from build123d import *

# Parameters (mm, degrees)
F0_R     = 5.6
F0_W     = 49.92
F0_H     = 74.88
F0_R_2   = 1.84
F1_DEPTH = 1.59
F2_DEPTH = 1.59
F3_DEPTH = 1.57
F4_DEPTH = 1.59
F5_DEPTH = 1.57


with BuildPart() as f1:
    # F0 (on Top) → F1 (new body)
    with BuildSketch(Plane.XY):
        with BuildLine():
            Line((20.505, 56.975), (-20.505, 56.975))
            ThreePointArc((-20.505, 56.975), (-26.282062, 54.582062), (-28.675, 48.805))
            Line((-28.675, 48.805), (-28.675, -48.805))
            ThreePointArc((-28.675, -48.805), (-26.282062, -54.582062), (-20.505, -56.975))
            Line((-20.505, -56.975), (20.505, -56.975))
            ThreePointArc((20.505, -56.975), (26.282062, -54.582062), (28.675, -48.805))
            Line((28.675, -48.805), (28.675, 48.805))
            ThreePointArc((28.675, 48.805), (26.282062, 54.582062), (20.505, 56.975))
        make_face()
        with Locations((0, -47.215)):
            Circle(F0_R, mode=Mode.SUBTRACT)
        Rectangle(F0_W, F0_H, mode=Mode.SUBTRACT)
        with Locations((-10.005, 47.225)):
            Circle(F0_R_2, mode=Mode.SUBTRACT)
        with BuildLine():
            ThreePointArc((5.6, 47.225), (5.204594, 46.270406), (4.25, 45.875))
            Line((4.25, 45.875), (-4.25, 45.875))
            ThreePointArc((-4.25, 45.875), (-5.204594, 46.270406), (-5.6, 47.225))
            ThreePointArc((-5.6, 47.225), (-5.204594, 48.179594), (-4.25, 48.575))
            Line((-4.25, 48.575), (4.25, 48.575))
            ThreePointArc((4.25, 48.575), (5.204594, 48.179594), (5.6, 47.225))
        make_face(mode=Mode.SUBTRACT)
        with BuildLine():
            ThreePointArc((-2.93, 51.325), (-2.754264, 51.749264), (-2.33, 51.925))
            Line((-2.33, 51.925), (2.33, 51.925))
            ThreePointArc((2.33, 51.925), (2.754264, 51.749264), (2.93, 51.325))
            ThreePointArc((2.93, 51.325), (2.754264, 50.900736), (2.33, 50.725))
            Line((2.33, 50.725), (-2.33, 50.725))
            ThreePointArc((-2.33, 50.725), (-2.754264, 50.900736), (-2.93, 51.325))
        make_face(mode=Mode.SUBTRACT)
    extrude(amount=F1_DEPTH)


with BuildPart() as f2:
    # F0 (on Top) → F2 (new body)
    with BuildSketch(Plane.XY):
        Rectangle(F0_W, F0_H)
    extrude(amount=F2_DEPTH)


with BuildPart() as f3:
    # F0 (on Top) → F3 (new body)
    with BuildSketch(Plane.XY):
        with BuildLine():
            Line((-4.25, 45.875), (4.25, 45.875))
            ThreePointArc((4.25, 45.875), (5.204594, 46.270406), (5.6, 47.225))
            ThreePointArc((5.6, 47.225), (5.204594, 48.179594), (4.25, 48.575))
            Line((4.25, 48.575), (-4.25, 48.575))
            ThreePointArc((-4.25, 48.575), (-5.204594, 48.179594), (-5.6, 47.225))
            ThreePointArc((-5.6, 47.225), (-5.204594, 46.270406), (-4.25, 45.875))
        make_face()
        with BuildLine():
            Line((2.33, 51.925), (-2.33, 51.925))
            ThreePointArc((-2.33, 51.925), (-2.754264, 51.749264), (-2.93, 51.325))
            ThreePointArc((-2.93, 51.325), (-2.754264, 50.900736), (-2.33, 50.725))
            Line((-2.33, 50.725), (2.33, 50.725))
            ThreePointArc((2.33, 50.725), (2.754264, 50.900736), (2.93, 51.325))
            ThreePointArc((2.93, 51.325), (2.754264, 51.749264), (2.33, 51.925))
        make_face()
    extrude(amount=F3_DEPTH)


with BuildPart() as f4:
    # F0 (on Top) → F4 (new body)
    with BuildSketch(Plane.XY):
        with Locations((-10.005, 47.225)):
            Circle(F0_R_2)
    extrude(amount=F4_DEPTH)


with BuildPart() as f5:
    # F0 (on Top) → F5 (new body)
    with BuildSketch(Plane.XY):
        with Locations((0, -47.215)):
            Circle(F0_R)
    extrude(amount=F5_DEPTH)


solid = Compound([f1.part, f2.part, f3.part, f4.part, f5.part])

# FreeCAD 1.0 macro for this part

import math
import FreeCAD as App
import Part
import Sketcher

V = App.Vector
Q = App.Units.Quantity


def add_polygon(sketch, points):
    """Adds a closed chain of lines whose ends are joined by coincident constraints."""
    first, n = sketch.GeometryCount, len(points)
    for a, b in zip(points, points[1:] + points[:1]):
        sketch.addGeometry(Part.LineSegment(App.Vector(*a, 0), App.Vector(*b, 0)), False)
    for i in range(n):
        sketch.addConstraint(Sketcher.Constraint("Coincident", first + i, 2, first + (i + 1) % n, 1))

doc = App.newDocument("Part")
body = doc.addObject("PartDesign::Body", "Body")

# Sketch on XY plane
sketch1 = body.newObject("Sketcher::SketchObject", "Sketch")
sketch1.AttachmentSupport = (doc.getObject("XY_Plane"), [""])
sketch1.MapMode = "FlatFace"
sketch1.addGeometry(Part.LineSegment(V(20.5, 57, 0), V(-20.5, 57, 0)), False)  # 0
sketch1.addGeometry(Part.ArcOfCircle(Part.Circle(V(-20.5, 48.8, 0), V(0, 0, 1), 8.2), math.radians(90), math.radians(180)), False)  # 1
sketch1.addGeometry(Part.LineSegment(V(-28.7, 48.8, 0), V(-28.7, -48.8, 0)), False)  # 2
sketch1.addGeometry(Part.ArcOfCircle(Part.Circle(V(-20.5, -48.8, 0), V(0, 0, 1), 8.2), math.radians(-180), math.radians(-90)), False)  # 3
sketch1.addGeometry(Part.LineSegment(V(-20.5, -57, 0), V(20.5, -57, 0)), False)  # 4
sketch1.addGeometry(Part.ArcOfCircle(Part.Circle(V(20.5, -48.8, 0), V(0, 0, 1), 8.2), math.radians(-90), math.radians(0)), False)  # 5
sketch1.addGeometry(Part.LineSegment(V(28.7, -48.8, 0), V(28.7, 48.8, 0)), False)  # 6
sketch1.addGeometry(Part.ArcOfCircle(Part.Circle(V(20.5, 48.8, 0), V(0, 0, 1), 8.2), math.radians(0), math.radians(90)), False)  # 7
sketch1.addGeometry(Part.Circle(V(0, -47.2, 0), V(0, 0, 1), 5.6), False)  # 8
sketch1.addGeometry(Part.Circle(V(-10, 47.2, 0), V(0, 0, 1), 1.8), False)  # 9
sketch1.addGeometry(Part.ArcOfCircle(Part.Circle(V(-2.3, 51.3, 0), V(0, 0, 1), 0.6), math.radians(-180), math.radians(-90)), False)  # 10
sketch1.addGeometry(Part.ArcOfCircle(Part.Circle(V(-2.3, 51.3, 0), V(0, 0, 1), 0.6), math.radians(90), math.radians(180)), False)  # 11
sketch1.addGeometry(Part.LineSegment(V(-2.3, 51.9, 0), V(2.3, 51.9, 0)), False)  # 12
sketch1.addGeometry(Part.ArcOfCircle(Part.Circle(V(2.3, 51.3, 0), V(0, 0, 1), 0.6), math.radians(0), math.radians(90)), False)  # 13
sketch1.addGeometry(Part.ArcOfCircle(Part.Circle(V(2.3, 51.3, 0), V(0, 0, 1), 0.6), math.radians(-90), math.radians(0)), False)  # 14
sketch1.addGeometry(Part.LineSegment(V(2.3, 50.7, 0), V(-2.3, 50.7, 0)), False)  # 15
add_polygon(sketch1, [(25, -37.4), (-25, -37.4), (-25, 37.4), (25, 37.4)])  # lines 16-19
sketch1.addGeometry(Part.ArcOfCircle(Part.Circle(V(4.2, 47.2, 0), V(0, 0, 1), 1.4), math.radians(0), math.radians(90)), False)  # 20
sketch1.addGeometry(Part.ArcOfCircle(Part.Circle(V(4.2, 47.2, 0), V(0, 0, 1), 1.4), math.radians(-90), math.radians(0)), False)  # 21
sketch1.addGeometry(Part.LineSegment(V(4.2, 45.9, 0), V(-4.2, 45.9, 0)), False)  # 22
sketch1.addGeometry(Part.ArcOfCircle(Part.Circle(V(-4.2, 47.2, 0), V(0, 0, 1), 1.4), math.radians(-180), math.radians(-90)), False)  # 23
sketch1.addGeometry(Part.ArcOfCircle(Part.Circle(V(-4.2, 47.2, 0), V(0, 0, 1), 1.4), math.radians(90), math.radians(180)), False)  # 24
sketch1.addGeometry(Part.LineSegment(V(-4.2, 48.6, 0), V(4.2, 48.6, 0)), False)  # 25
sketch1.addConstraint([
    Sketcher.Constraint("Tangent", 0, 2, 1, 1),
    Sketcher.Constraint("Tangent", 1, 2, 2, 1),
    Sketcher.Constraint("Tangent", 2, 2, 3, 1),
    Sketcher.Constraint("Tangent", 3, 2, 4, 1),
    Sketcher.Constraint("Tangent", 4, 2, 5, 1),
    Sketcher.Constraint("Tangent", 5, 2, 6, 1),
    Sketcher.Constraint("Tangent", 6, 2, 7, 1),
    Sketcher.Constraint("Tangent", 7, 2, 0, 1),
    Sketcher.Constraint("Tangent", 10, 1, 11, 2),
    Sketcher.Constraint("Tangent", 11, 1, 12, 1),
    Sketcher.Constraint("Tangent", 12, 2, 13, 2),
    Sketcher.Constraint("Tangent", 13, 1, 14, 2),
    Sketcher.Constraint("Tangent", 14, 1, 15, 1),
    Sketcher.Constraint("Tangent", 15, 2, 10, 2),
    Sketcher.Constraint("Tangent", 20, 1, 21, 2),
    Sketcher.Constraint("Tangent", 21, 1, 22, 1),
    Sketcher.Constraint("Tangent", 22, 2, 23, 2),
    Sketcher.Constraint("Tangent", 23, 1, 24, 2),
    Sketcher.Constraint("Tangent", 24, 1, 25, 1),
    Sketcher.Constraint("Tangent", 25, 2, 20, 2),
    Sketcher.Constraint("Horizontal", 0),
    Sketcher.Constraint("Vertical", 2),
    Sketcher.Constraint("Horizontal", 4),
    Sketcher.Constraint("Vertical", 6),
    Sketcher.Constraint("Horizontal", 12),
    Sketcher.Constraint("Horizontal", 15),
    Sketcher.Constraint("Horizontal", 16),
    Sketcher.Constraint("Vertical", 17),
    Sketcher.Constraint("Horizontal", 18),
    Sketcher.Constraint("Vertical", 19),
    Sketcher.Constraint("Horizontal", 22),
    Sketcher.Constraint("Horizontal", 25),
    Sketcher.Constraint("Equal", 1, 3),
    Sketcher.Constraint("Equal", 3, 5),
    Sketcher.Constraint("Equal", 5, 7),
    Sketcher.Constraint("Equal", 10, 11),
    Sketcher.Constraint("Equal", 11, 13),
    Sketcher.Constraint("Equal", 20, 21),
    Sketcher.Constraint("Equal", 21, 23),
    Sketcher.Constraint("Symmetric", 1, 3, 5, 3, -1, 1),
    Sketcher.Constraint("Symmetric", 16, 2, 18, 2, -1, 1),
    Sketcher.Constraint("Symmetric", 10, 1, 13, 1, -2),
    Sketcher.Constraint("Symmetric", 20, 1, 23, 1, -2),
    Sketcher.Constraint("PointOnObject", 8, 3, -2),
    Sketcher.Constraint("Horizontal", 9, 3, 20, 3),
    Sketcher.Constraint("Horizontal", 14, 3, 10, 1),
    Sketcher.Constraint("Horizontal", 24, 3, 20, 1),
    Sketcher.Constraint("Diameter", 8, Q("11.2 mm")),
    Sketcher.Constraint("Radius", 10, Q("0.6 mm")),
    Sketcher.Constraint("Diameter", 9, Q("3.68 mm")),
    Sketcher.Constraint("Radius", 1, Q("8.170001 mm")),
    Sketcher.Constraint("Radius", 20, Q("1.350001 mm")),
    Sketcher.Constraint("DistanceX", 22, 2, 22, 1, Q("8.5 mm")),
    Sketcher.Constraint("DistanceX", 0, 2, 0, 1, Q("41.01 mm")),
    Sketcher.Constraint("DistanceX", 12, 1, 12, 2, Q("4.66 mm")),
    Sketcher.Constraint("DistanceX", 16, 2, 16, 1, Q("49.92 mm")),
    Sketcher.Constraint("DistanceY", 2, 2, 2, 1, Q("97.61 mm")),
    Sketcher.Constraint("DistanceY", 17, 1, 17, 2, Q("74.88 mm")),
    Sketcher.Constraint("DistanceX", 1, 3, 9, 3, Q("10.499999 mm")),
    Sketcher.Constraint("DistanceY", 9, 3, 10, 3, Q("4.1 mm")),
    Sketcher.Constraint("DistanceY", 3, 2, 9, 3, Q("104.2 mm")),
    Sketcher.Constraint("DistanceY", 3, 3, 8, 3, Q("1.589999 mm")),
])
pad1 = body.newObject("PartDesign::Pad", "Pad")
pad1.Profile = sketch1
pad1.Length = 1.59
body2 = doc.addObject("PartDesign::Body", "Body001")

# Sketch on XY plane
sketch2 = body2.newObject("Sketcher::SketchObject", "Sketch001")
sketch2.AttachmentSupport = (doc.getObject("XY_Plane001"), [""])
sketch2.MapMode = "FlatFace"
add_polygon(sketch2, [(-25, 37), (-25, -37), (25, -37), (25, 37)])  # lines 0-3
sketch2.addConstraint([
    Sketcher.Constraint("Vertical", 0),
    Sketcher.Constraint("Horizontal", 1),
    Sketcher.Constraint("Vertical", 2),
    Sketcher.Constraint("Horizontal", 3),
    Sketcher.Constraint("Symmetric", 0, 2, 2, 2, -1, 1),
    Sketcher.Constraint("DistanceX", 1, 1, 1, 2, Q("49.92 mm")),
    Sketcher.Constraint("DistanceY", 0, 2, 0, 1, Q("74.88 mm")),
])
pad2 = body2.newObject("PartDesign::Pad", "Pad001")
pad2.Profile = sketch2
pad2.Length = 1.59
body3 = doc.addObject("PartDesign::Body", "Body002")
body3.AllowCompound = True

# Sketch on XY plane
sketch3 = body3.newObject("Sketcher::SketchObject", "Sketch002")
sketch3.AttachmentSupport = (doc.getObject("XY_Plane002"), [""])
sketch3.MapMode = "FlatFace"
sketch3.addGeometry([
    Part.LineSegment(V(-4.2, 45.9, 0), V(4.2, 45.9, 0)),  # 0
    Part.ArcOfCircle(Part.Circle(V(4.2, 47.2, 0), V(0, 0, 1), 1.4), math.radians(-90), math.radians(0)),  # 1
    Part.ArcOfCircle(Part.Circle(V(4.2, 47.2, 0), V(0, 0, 1), 1.4), math.radians(0), math.radians(90)),  # 2
    Part.LineSegment(V(4.2, 48.6, 0), V(-4.2, 48.6, 0)),  # 3
    Part.ArcOfCircle(Part.Circle(V(-4.2, 47.2, 0), V(0, 0, 1), 1.4), math.radians(90), math.radians(180)),  # 4
    Part.ArcOfCircle(Part.Circle(V(-4.2, 47.2, 0), V(0, 0, 1), 1.4), math.radians(-180), math.radians(-90)),  # 5
    Part.LineSegment(V(2.3, 51.9, 0), V(-2.3, 51.9, 0)),  # 6
    Part.ArcOfCircle(Part.Circle(V(-2.3, 51.3, 0), V(0, 0, 1), 0.6), math.radians(90), math.radians(180)),  # 7
    Part.ArcOfCircle(Part.Circle(V(-2.3, 51.3, 0), V(0, 0, 1), 0.6), math.radians(-180), math.radians(-90)),  # 8
    Part.LineSegment(V(-2.3, 50.7, 0), V(2.3, 50.7, 0)),  # 9
    Part.ArcOfCircle(Part.Circle(V(2.3, 51.3, 0), V(0, 0, 1), 0.6), math.radians(-90), math.radians(0)),  # 10
    Part.ArcOfCircle(Part.Circle(V(2.3, 51.3, 0), V(0, 0, 1), 0.6), math.radians(0), math.radians(90)),  # 11
], False)
sketch3.addConstraint([
    Sketcher.Constraint("Tangent", 0, 2, 1, 1),
    Sketcher.Constraint("Tangent", 1, 2, 2, 1),
    Sketcher.Constraint("Tangent", 2, 2, 3, 1),
    Sketcher.Constraint("Tangent", 3, 2, 4, 1),
    Sketcher.Constraint("Tangent", 4, 2, 5, 1),
    Sketcher.Constraint("Tangent", 5, 2, 0, 1),
    Sketcher.Constraint("Tangent", 6, 2, 7, 1),
    Sketcher.Constraint("Tangent", 7, 2, 8, 1),
    Sketcher.Constraint("Tangent", 8, 2, 9, 1),
    Sketcher.Constraint("Tangent", 9, 2, 10, 1),
    Sketcher.Constraint("Tangent", 10, 2, 11, 1),
    Sketcher.Constraint("Tangent", 11, 2, 6, 1),
    Sketcher.Constraint("Horizontal", 0),
    Sketcher.Constraint("Horizontal", 3),
    Sketcher.Constraint("Horizontal", 6),
    Sketcher.Constraint("Horizontal", 9),
    Sketcher.Constraint("Equal", 1, 2),
    Sketcher.Constraint("Equal", 2, 4),
    Sketcher.Constraint("Equal", 7, 8),
    Sketcher.Constraint("Equal", 8, 10),
    Sketcher.Constraint("Symmetric", 1, 2, 4, 2, -2),
    Sketcher.Constraint("Symmetric", 7, 2, 10, 2, -2),
    Sketcher.Constraint("Horizontal", 5, 3, 1, 2),
    Sketcher.Constraint("Horizontal", 11, 3, 7, 2),
    Sketcher.Constraint("Radius", 7, Q("0.6 mm")),
    Sketcher.Constraint("Radius", 1, Q("1.350001 mm")),
    Sketcher.Constraint("DistanceX", 0, 1, 0, 2, Q("8.5 mm")),
    Sketcher.Constraint("DistanceX", 6, 2, 6, 1, Q("4.66 mm")),
    Sketcher.Constraint("DistanceY", 5, 3, 7, 3, Q("4.099999 mm")),
    Sketcher.Constraint("DistanceY", -1, 1, 1, 3, Q("47.225001 mm")),
])
pad3 = body3.newObject("PartDesign::Pad", "Pad002")
pad3.Profile = sketch3
pad3.Length = 1.57
body4 = doc.addObject("PartDesign::Body", "Body003")

# Sketch on XY plane
sketch4 = body4.newObject("Sketcher::SketchObject", "Sketch003")
sketch4.AttachmentSupport = (doc.getObject("XY_Plane003"), [""])
sketch4.MapMode = "FlatFace"
sketch4.addGeometry(Part.Circle(V(-10, 47.2, 0), V(0, 0, 1), 1.8), False)
sketch4.addConstraint([
    Sketcher.Constraint("Diameter", 0, Q("3.68 mm")),
    Sketcher.Constraint("DistanceX", 0, 3, -1, 1, Q("10.005 mm")),
    Sketcher.Constraint("DistanceY", -1, 1, 0, 3, Q("47.225 mm")),
])
pad4 = body4.newObject("PartDesign::Pad", "Pad003")
pad4.Profile = sketch4
pad4.Length = 1.59
body5 = doc.addObject("PartDesign::Body", "Body004")

# Sketch on XY plane
sketch5 = body5.newObject("Sketcher::SketchObject", "Sketch004")
sketch5.AttachmentSupport = (doc.getObject("XY_Plane004"), [""])
sketch5.MapMode = "FlatFace"
sketch5.addGeometry(Part.Circle(V(0, -47, 0), V(0, 0, 1), 6), False)
sketch5.addConstraint([
    Sketcher.Constraint("PointOnObject", 0, 3, -2),
    Sketcher.Constraint("Diameter", 0, Q("11.2 mm")),
    Sketcher.Constraint("DistanceY", 0, 3, -1, 1, Q("47.215 mm")),
])
pad5 = body5.newObject("PartDesign::Pad", "Pad004")
pad5.Profile = sketch5
pad5.Length = 1.57

doc.recompute()
